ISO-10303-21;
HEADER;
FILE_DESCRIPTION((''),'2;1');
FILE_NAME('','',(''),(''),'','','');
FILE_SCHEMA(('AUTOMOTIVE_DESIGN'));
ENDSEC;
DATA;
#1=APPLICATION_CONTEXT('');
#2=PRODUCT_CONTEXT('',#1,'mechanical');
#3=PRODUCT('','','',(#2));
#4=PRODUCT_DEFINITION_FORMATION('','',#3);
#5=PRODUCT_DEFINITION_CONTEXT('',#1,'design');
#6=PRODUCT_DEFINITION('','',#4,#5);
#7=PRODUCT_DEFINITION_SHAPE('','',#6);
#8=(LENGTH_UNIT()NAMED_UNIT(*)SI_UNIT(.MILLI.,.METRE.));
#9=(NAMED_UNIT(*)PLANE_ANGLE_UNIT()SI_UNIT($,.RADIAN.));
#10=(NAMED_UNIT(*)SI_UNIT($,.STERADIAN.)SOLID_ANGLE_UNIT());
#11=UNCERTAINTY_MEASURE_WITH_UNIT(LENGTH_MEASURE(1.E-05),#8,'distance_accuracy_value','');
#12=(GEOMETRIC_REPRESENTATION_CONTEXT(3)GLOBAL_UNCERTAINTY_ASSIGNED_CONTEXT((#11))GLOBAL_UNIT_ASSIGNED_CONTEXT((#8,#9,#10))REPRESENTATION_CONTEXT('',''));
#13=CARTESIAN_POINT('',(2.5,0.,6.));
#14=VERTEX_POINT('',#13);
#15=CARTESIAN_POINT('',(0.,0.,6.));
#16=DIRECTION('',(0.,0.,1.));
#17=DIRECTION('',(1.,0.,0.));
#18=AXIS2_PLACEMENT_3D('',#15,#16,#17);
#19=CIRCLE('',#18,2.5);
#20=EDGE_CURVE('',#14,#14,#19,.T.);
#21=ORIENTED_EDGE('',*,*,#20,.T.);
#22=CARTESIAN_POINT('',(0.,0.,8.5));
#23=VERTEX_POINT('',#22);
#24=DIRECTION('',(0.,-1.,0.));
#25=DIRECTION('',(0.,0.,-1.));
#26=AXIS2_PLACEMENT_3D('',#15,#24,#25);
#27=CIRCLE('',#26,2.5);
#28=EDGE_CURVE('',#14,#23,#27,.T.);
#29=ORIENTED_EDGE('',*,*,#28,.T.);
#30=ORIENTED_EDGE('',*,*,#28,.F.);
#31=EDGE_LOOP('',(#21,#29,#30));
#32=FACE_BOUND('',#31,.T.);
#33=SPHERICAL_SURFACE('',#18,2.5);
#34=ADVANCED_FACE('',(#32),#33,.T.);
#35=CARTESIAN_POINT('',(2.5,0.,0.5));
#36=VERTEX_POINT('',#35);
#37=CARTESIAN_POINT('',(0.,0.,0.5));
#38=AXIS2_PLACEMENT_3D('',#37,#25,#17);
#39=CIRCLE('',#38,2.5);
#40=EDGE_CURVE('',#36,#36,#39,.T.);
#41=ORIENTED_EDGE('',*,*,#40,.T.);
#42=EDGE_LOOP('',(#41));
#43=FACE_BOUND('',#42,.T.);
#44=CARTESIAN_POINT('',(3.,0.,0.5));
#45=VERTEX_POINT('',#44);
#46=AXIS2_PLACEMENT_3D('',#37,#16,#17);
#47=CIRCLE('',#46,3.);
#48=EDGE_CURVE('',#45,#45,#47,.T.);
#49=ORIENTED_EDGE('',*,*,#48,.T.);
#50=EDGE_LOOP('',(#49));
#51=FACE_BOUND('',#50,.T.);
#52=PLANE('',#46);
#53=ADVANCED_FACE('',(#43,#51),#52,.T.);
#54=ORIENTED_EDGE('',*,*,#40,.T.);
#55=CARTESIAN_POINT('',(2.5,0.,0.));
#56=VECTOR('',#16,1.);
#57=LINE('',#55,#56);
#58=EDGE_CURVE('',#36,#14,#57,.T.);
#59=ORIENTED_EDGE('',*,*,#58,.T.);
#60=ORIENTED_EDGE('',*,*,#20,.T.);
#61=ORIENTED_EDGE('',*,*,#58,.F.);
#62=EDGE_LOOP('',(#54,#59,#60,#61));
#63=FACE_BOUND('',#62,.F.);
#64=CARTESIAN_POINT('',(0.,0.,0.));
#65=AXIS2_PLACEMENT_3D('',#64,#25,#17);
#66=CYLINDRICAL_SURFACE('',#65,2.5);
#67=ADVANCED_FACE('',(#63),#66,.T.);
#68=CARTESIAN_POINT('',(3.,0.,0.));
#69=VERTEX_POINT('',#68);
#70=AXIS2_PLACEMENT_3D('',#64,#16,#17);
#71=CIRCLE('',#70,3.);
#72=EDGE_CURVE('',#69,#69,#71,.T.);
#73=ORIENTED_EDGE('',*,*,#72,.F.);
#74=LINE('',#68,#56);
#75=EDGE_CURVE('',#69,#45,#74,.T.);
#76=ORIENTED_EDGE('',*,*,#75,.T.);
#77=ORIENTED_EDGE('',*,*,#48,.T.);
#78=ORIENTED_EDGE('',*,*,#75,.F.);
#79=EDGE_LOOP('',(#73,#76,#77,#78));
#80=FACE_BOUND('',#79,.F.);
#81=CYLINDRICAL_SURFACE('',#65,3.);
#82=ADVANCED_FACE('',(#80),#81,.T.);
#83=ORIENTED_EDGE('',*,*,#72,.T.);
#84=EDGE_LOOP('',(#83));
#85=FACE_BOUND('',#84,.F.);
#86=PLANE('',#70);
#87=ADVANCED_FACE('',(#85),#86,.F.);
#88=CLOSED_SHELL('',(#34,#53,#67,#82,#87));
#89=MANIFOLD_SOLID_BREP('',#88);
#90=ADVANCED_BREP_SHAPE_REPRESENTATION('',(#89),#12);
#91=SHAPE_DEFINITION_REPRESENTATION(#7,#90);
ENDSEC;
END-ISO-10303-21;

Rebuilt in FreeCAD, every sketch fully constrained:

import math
import FreeCAD as App
import Part
import Sketcher

V = App.Vector

doc = App.newDocument("Part")
params = doc.addObject("Spreadsheet::Sheet", "Params")
for row, (alias, value) in enumerate([
    ("sketch1_radius", "2.5 mm"),
    ("revolution_angle", "360 deg"),
    ("sketch2_diameter", "6 mm"),
    ("pad1_length", "0.5 mm"),
    ("sketch3_diameter", "5 mm"),
    ("pad2_length", "6 mm"),
], start=1):
    params.set(f"A{row}", alias)
    params.set(f"B{row}", "=" + value)
    params.setAlias(f"B{row}", alias)

body = doc.addObject("PartDesign::Body", "Body")

# Sketch on XZ plane
sketch1 = doc.addObject("Sketcher::SketchObject", "Sketch")
body.addObject(sketch1)
sketch1.AttachmentSupport = (doc.XZ_Plane, [""])
sketch1.MapMode = "FlatFace"
sketch1.addGeometry(Part.ArcOfCircle(Part.Circle(V(0, 6, 0), V(0, 0, 1), 2.5), math.radians(-90), math.radians(90)), False)
sketch1.addGeometry(Part.LineSegment(V(0, 8.5, 0), V(0, 3.5, 0)), False)
sketch1.addConstraint(Sketcher.Constraint("Coincident", 0, 1, 1, 2))
sketch1.addConstraint(Sketcher.Constraint("Coincident", 1, 1, 0, 2))
sketch1.addConstraint(Sketcher.Constraint("Vertical", 1))
sketch1.addConstraint(Sketcher.Constraint("PointOnObject", 0, 3, -2))
sketch1.addConstraint(Sketcher.Constraint("PointOnObject", 0, 1, -2))
sketch1.addConstraint(Sketcher.Constraint("Radius", 0, 2.5))
sketch1.addConstraint(Sketcher.Constraint("DistanceY", -1, 1, 0, 3, 6.0))
sketch1.setExpression("Constraints[5]", "Params.sketch1_radius")
revolution = doc.addObject("PartDesign::Revolution", "Revolution")
body.addObject(revolution)
revolution.Profile = sketch1
revolution.ReferenceAxis = (sketch1, ["V_Axis"])
revolution.setExpression("Angle", "Params.revolution_angle")
body2 = doc.addObject("PartDesign::Body", "Body001")

# Sketch on XY plane
sketch2 = doc.addObject("Sketcher::SketchObject", "Sketch001")
body2.addObject(sketch2)
sketch2.AttachmentSupport = (doc.getObject("XY_Plane001"), [""])
sketch2.MapMode = "FlatFace"
sketch2.addGeometry(Part.Circle(V(0, 0, 0), V(0, 0, 1), 3), False)
sketch2.addConstraint(Sketcher.Constraint("Coincident", 0, 3, -1, 1))
sketch2.addConstraint(Sketcher.Constraint("Diameter", 0, 6.0))
sketch2.setExpression("Constraints[1]", "Params.sketch2_diameter")
pad1 = doc.addObject("PartDesign::Pad", "Pad")
body2.addObject(pad1)
pad1.Profile = sketch2
pad1.setExpression("Length", "Params.pad1_length")
body3 = doc.addObject("PartDesign::Body", "Body002")

# Sketch on XY plane
sketch3 = doc.addObject("Sketcher::SketchObject", "Sketch002")
body3.addObject(sketch3)
sketch3.AttachmentSupport = (doc.getObject("XY_Plane002"), [""])
sketch3.MapMode = "FlatFace"
sketch3.addGeometry(Part.Circle(V(0, 0, 0), V(0, 0, 1), 2.5), False)
sketch3.addConstraint(Sketcher.Constraint("Coincident", 0, 3, -1, 1))
sketch3.addConstraint(Sketcher.Constraint("Diameter", 0, 5.0))
sketch3.setExpression("Constraints[1]", "Params.sketch3_diameter")
pad2 = doc.addObject("PartDesign::Pad", "Pad001")
body3.addObject(pad2)
pad2.Profile = sketch3
pad2.setExpression("Length", "Params.pad2_length")
doc.recompute()

boolean = doc.addObject("PartDesign::Boolean", "Boolean")
body3.addObject(boolean)
boolean.Type = "Fuse"
boolean.addObjects([body])
doc.recompute()

boolean2 = doc.addObject("PartDesign::Boolean", "Boolean001")
body3.addObject(boolean2)
boolean2.Type = "Fuse"
boolean2.addObjects([body2])

doc.recompute()
